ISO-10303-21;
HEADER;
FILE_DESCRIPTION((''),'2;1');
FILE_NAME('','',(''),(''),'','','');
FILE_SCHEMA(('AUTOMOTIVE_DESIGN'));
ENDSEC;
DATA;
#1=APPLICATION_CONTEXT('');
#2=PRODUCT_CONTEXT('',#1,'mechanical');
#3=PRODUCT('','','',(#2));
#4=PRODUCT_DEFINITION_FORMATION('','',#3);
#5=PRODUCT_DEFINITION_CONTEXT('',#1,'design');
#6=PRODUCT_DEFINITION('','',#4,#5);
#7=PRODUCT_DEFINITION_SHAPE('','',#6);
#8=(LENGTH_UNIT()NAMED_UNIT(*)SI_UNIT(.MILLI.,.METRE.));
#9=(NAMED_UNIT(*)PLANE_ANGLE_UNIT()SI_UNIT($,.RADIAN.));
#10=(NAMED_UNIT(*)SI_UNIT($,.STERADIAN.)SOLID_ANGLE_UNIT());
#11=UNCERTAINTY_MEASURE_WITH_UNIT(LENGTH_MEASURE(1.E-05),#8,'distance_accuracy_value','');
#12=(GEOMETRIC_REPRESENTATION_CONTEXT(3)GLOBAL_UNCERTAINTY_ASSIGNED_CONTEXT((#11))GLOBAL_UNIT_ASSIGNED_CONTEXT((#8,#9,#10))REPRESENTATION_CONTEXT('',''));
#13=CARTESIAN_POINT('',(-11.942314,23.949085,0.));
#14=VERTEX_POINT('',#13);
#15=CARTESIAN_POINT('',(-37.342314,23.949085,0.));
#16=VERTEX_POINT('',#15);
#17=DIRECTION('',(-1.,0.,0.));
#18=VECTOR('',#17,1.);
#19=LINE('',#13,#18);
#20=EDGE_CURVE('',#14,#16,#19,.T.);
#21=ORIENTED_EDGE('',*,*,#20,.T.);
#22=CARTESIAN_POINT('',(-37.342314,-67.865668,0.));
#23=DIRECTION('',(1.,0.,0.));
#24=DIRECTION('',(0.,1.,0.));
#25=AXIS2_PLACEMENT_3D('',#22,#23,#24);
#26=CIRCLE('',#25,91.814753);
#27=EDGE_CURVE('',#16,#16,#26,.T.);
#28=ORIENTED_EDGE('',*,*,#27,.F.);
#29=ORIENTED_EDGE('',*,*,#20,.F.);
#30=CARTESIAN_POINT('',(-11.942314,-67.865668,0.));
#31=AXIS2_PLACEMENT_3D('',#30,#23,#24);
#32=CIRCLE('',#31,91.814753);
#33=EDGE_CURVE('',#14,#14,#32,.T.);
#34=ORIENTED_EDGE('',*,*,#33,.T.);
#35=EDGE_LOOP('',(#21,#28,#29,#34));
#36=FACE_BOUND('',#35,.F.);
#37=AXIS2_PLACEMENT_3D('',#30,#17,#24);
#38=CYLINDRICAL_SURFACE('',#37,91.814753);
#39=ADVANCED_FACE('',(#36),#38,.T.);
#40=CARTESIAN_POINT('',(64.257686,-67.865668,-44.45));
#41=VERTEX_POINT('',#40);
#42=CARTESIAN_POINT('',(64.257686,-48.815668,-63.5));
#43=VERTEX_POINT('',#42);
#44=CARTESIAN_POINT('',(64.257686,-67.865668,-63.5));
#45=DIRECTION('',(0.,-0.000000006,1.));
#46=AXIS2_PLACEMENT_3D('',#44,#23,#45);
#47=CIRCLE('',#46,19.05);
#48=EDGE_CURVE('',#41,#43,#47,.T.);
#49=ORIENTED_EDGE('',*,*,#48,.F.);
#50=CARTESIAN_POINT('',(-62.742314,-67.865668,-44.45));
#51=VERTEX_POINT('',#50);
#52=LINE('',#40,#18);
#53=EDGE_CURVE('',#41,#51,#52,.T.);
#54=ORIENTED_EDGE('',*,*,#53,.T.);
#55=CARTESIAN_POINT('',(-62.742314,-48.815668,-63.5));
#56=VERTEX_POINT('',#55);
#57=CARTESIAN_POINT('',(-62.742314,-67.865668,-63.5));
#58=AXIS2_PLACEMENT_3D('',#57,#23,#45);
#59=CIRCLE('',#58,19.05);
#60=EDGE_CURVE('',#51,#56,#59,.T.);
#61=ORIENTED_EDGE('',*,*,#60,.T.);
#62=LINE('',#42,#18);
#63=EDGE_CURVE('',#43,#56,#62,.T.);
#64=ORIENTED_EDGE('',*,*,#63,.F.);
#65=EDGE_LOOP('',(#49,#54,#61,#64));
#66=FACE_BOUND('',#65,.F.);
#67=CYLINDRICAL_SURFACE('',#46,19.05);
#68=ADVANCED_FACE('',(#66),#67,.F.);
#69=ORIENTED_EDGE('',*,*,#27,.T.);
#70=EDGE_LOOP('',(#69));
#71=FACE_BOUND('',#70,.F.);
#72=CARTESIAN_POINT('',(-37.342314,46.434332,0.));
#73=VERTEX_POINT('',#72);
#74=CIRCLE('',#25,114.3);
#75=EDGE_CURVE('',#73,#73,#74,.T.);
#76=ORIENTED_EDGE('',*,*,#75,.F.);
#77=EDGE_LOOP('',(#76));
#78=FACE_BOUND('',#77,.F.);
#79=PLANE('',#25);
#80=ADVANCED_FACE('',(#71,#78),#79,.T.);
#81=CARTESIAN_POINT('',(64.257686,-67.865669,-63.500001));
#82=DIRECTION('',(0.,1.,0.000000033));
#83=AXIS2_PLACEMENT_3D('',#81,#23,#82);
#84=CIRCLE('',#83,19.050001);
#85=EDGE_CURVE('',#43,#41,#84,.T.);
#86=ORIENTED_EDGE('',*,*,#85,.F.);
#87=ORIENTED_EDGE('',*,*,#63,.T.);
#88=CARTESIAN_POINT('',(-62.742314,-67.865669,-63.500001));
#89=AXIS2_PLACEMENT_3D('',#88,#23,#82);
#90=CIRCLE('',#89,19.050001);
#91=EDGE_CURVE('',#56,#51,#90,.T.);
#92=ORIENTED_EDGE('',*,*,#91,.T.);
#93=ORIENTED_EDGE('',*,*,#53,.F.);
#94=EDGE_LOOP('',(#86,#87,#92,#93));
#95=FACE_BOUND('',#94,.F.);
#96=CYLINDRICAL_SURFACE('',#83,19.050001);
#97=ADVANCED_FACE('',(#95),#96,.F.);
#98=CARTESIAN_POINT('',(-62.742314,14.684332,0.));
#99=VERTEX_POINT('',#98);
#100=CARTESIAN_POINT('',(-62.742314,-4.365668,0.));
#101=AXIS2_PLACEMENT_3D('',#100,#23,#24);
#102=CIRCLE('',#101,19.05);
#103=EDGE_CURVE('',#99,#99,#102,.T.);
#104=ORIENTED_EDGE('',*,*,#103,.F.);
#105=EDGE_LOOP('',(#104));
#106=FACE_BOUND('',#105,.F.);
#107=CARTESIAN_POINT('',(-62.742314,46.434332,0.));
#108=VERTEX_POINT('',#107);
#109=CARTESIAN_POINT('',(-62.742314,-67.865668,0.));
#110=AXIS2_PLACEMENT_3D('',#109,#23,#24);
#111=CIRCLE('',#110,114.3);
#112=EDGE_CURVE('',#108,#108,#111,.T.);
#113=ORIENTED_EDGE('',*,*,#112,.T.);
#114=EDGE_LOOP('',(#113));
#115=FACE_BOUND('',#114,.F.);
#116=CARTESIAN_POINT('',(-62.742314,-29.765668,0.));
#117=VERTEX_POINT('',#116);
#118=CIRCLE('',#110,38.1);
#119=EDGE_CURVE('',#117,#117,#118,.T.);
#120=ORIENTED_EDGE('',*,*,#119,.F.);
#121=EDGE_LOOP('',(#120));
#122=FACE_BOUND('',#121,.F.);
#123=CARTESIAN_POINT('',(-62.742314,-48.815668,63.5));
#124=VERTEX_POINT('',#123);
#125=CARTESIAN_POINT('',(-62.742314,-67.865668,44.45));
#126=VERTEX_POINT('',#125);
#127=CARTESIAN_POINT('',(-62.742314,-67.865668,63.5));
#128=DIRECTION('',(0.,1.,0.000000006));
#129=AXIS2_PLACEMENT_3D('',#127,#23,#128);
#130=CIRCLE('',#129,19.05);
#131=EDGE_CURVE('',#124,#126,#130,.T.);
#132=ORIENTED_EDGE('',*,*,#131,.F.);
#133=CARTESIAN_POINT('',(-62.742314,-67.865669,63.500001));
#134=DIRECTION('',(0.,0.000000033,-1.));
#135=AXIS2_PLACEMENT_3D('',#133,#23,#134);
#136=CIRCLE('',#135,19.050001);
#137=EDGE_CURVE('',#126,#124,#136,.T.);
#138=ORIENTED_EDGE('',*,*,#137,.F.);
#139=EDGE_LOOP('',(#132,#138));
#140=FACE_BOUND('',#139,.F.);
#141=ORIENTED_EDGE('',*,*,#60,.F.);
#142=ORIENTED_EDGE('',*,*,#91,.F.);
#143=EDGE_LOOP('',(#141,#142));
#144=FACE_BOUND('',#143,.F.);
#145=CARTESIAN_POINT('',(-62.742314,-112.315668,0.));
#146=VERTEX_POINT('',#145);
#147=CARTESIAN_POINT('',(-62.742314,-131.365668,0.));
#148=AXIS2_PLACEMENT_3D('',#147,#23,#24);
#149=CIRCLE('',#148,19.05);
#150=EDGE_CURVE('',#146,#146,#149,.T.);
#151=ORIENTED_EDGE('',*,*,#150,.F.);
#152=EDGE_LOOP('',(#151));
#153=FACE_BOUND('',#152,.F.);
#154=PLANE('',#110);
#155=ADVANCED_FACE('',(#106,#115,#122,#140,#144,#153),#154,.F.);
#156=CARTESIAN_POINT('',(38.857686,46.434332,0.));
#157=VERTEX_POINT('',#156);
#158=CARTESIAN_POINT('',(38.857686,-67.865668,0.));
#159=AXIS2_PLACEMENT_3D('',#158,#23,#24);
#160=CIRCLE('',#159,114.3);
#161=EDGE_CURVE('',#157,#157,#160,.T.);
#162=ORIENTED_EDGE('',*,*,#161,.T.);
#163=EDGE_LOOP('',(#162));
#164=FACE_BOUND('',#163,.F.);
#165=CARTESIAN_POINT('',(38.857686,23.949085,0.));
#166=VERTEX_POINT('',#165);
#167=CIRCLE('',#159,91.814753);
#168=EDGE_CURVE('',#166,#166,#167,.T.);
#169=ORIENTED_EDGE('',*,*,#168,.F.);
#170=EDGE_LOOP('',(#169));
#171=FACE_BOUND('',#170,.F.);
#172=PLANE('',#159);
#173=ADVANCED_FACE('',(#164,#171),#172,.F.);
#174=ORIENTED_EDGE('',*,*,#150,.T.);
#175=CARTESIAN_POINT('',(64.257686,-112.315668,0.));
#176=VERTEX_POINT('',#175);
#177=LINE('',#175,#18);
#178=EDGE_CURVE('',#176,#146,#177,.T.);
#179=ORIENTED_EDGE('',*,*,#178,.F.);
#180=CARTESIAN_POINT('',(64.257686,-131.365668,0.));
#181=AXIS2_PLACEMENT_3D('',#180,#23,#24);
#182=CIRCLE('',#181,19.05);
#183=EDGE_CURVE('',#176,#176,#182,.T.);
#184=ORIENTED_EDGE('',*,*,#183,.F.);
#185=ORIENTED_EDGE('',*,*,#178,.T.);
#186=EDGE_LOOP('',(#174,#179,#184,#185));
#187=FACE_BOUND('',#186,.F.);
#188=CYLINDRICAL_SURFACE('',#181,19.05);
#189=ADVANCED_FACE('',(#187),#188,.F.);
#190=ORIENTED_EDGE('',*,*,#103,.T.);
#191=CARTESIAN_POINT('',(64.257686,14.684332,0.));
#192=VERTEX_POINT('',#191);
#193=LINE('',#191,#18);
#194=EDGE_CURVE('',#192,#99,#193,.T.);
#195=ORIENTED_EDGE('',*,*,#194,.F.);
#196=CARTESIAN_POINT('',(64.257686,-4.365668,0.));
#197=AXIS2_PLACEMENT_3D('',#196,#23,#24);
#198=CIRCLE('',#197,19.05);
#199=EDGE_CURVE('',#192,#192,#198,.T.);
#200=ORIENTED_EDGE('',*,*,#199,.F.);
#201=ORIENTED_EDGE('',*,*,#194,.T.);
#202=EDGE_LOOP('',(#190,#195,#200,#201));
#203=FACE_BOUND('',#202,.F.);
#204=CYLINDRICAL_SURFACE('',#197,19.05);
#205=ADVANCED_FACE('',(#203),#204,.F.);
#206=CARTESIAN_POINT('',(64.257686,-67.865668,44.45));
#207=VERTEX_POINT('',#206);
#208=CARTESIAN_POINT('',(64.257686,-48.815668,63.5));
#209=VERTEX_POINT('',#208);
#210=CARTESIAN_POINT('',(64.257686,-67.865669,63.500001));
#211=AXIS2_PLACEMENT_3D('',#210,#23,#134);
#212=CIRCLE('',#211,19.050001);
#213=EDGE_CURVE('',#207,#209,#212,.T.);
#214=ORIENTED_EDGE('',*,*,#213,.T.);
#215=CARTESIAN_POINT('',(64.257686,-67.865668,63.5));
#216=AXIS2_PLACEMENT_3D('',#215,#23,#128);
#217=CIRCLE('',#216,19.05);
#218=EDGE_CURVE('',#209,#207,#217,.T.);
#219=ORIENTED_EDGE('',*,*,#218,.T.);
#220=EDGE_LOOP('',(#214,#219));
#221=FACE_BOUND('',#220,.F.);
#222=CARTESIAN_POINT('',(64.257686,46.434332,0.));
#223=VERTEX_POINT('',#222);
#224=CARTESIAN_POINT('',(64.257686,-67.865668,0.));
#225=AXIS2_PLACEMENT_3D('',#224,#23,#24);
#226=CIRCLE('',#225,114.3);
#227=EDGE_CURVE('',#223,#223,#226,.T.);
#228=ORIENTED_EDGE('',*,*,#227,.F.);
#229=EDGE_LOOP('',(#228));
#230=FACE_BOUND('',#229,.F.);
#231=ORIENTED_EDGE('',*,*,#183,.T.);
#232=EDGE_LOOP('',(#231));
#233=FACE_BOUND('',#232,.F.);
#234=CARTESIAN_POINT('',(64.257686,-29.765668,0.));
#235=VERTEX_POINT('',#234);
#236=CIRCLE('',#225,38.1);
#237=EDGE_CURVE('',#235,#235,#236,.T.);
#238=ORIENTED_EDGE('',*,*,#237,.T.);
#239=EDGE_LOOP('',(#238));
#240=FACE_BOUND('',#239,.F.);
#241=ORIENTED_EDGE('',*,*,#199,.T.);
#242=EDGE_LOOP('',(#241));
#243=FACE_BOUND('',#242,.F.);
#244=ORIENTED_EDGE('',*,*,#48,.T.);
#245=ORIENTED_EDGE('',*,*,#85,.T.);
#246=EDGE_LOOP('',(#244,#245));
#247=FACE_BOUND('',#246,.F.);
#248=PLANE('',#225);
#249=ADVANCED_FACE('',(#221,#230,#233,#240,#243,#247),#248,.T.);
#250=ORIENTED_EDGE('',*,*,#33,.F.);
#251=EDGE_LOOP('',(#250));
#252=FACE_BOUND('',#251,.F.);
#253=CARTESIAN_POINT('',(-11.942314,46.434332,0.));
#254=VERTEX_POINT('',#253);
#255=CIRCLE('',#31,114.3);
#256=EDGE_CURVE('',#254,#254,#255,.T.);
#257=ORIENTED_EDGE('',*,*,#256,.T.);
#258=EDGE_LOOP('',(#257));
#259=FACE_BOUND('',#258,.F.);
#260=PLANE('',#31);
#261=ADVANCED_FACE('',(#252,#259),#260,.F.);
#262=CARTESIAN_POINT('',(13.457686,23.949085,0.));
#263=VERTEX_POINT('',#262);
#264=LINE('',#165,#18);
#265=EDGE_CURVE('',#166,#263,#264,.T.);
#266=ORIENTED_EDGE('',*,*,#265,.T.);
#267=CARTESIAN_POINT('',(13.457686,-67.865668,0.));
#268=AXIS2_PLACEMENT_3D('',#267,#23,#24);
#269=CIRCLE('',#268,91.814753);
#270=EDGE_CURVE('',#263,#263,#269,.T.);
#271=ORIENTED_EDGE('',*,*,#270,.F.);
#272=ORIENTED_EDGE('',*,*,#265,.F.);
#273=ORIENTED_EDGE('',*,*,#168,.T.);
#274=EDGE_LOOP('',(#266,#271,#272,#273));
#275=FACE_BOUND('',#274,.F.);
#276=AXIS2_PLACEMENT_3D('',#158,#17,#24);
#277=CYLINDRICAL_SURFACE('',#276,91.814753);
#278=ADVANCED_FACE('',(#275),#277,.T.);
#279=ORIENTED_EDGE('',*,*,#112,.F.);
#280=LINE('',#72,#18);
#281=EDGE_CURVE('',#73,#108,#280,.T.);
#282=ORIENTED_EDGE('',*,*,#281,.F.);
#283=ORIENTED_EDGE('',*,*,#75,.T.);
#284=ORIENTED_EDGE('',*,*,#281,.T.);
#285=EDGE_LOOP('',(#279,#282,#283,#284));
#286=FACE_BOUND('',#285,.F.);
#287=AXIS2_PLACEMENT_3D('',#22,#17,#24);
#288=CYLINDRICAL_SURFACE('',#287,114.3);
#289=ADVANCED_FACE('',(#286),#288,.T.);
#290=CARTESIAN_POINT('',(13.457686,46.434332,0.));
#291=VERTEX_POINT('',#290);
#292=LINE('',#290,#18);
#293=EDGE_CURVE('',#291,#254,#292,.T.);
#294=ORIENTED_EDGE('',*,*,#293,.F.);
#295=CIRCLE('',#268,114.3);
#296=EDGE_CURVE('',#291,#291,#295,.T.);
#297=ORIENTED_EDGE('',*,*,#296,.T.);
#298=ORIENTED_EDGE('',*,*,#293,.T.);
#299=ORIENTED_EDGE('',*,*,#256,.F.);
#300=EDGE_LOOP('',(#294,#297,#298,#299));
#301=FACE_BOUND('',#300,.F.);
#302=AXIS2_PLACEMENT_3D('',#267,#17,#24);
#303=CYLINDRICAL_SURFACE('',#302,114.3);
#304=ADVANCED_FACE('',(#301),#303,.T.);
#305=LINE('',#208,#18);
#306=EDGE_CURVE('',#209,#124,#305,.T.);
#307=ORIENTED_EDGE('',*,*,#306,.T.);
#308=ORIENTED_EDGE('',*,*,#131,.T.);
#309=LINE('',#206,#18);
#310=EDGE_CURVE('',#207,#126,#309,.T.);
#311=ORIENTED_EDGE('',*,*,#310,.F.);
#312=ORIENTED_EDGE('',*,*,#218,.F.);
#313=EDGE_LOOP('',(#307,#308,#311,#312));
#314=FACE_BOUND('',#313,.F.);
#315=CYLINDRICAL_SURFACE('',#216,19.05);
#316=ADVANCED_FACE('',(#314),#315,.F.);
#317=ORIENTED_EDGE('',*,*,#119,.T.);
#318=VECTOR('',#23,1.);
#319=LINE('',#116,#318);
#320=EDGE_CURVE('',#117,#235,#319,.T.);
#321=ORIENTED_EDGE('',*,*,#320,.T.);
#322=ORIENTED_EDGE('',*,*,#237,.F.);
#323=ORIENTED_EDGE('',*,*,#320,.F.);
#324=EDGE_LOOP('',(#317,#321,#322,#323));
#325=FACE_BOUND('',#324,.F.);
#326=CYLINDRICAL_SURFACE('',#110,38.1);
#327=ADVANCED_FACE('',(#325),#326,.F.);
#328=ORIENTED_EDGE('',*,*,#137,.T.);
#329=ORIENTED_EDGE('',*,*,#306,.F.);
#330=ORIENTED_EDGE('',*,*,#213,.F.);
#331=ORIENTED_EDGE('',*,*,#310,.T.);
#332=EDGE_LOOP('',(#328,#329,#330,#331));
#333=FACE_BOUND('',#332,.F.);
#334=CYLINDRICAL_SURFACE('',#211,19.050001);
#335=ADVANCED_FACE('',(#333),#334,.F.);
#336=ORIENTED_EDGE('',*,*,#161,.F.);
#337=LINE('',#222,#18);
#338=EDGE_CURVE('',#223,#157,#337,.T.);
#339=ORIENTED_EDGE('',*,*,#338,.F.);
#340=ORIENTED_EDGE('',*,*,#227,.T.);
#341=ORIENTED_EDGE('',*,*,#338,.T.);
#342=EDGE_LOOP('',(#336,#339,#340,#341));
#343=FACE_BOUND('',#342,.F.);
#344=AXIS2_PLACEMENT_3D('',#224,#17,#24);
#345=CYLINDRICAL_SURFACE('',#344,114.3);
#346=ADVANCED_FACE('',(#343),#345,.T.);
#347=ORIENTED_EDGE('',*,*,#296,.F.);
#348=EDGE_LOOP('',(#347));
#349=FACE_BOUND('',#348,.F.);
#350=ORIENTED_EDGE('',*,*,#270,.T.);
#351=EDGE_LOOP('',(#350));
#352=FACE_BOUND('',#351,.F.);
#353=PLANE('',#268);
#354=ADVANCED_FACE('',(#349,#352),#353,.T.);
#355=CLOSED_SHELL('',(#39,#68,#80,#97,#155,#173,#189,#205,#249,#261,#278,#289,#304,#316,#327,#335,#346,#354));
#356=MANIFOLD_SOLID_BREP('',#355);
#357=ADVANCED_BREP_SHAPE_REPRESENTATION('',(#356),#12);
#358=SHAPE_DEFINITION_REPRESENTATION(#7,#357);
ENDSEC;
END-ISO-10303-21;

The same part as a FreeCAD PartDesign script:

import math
import FreeCAD as App
import Part
import Sketcher

V = App.Vector
Q = App.Units.Quantity


def add_polygon(sketch, points):
    """Adds a closed chain of lines whose ends are joined by coincident constraints."""
    first, n = sketch.GeometryCount, len(points)
    for a, b in zip(points, points[1:] + points[:1]):
        sketch.addGeometry(Part.LineSegment(App.Vector(*a, 0), App.Vector(*b, 0)), False)
    for i in range(n):
        sketch.addConstraint(Sketcher.Constraint("Coincident", first + i, 2, first + (i + 1) % n, 1))

doc = App.newDocument("Part")
body = doc.addObject("PartDesign::Body", "Body")

# Sketch on XY plane
sketch1 = body.newObject("Sketcher::SketchObject", "Sketch")
sketch1.AttachmentSupport = (doc.getObject("XY_Plane"), [""])
sketch1.MapMode = "FlatFace"
add_polygon(sketch1, [(-37, 46), (-63, 46), (-63, -30), (64, -30), (64, 46), (39, 46), (39, 24), (13, 24), (13, 46), (-12, 46), (-12, 24), (-37, 24)])  # lines 0-11
sketch1.addGeometry(Part.LineSegment(V(-63, -68, 0), V(64, -68, 0)), True)  # axis
sketch1.addConstraint(Sketcher.Constraint("Horizontal", 0))
sketch1.addConstraint(Sketcher.Constraint("Vertical", 1))
sketch1.addConstraint(Sketcher.Constraint("Horizontal", 2))
sketch1.addConstraint(Sketcher.Constraint("Vertical", 3))
sketch1.addConstraint(Sketcher.Constraint("Horizontal", 4))
sketch1.addConstraint(Sketcher.Constraint("Vertical", 5))
sketch1.addConstraint(Sketcher.Constraint("Horizontal", 6))
sketch1.addConstraint(Sketcher.Constraint("Vertical", 7))
sketch1.addConstraint(Sketcher.Constraint("Horizontal", 8))
sketch1.addConstraint(Sketcher.Constraint("Vertical", 9))
sketch1.addConstraint(Sketcher.Constraint("Horizontal", 10))
sketch1.addConstraint(Sketcher.Constraint("Vertical", 11))
sketch1.addConstraint(Sketcher.Constraint("Horizontal", 12))
sketch1.addConstraint(Sketcher.Constraint("Horizontal", 0, 2, 3, 2))
sketch1.addConstraint(Sketcher.Constraint("Horizontal", 4, 2, 7, 2))
sketch1.addConstraint(Sketcher.Constraint("Horizontal", 6, 2, 9, 2))
sketch1.addConstraint(Sketcher.Constraint("Vertical", 1, 2, 12, 1))
sketch1.addConstraint(Sketcher.Constraint("Vertical", 3, 2, 12, 2))
sketch1.addConstraint(Sketcher.Constraint("Equal", 0, 4))
sketch1.addConstraint(Sketcher.Constraint("Equal", 4, 6))
sketch1.addConstraint(Sketcher.Constraint("Equal", 6, 8))
sketch1.addConstraint(Sketcher.Constraint("Equal", 8, 10))
sketch1.addConstraint(Sketcher.Constraint("DistanceX", 0, 2, 0, 1, Q("1 in")))
sketch1.addConstraint(Sketcher.Constraint("DistanceY", 1, 2, 1, 1, Q("3 in")))
sketch1.addConstraint(Sketcher.Constraint("DistanceY", 12, 1, 1, 2, Q("1.5 in")))
sketch1.addConstraint(Sketcher.Constraint("DistanceY", 5, 2, 5, 1, Q("22.485247 mm")))
sketch1.addConstraint(Sketcher.Constraint("DistanceY", -1, 1, 0, 2, Q("46.434332 mm")))
sketch1.addConstraint(Sketcher.Constraint("DistanceX", 0, 2, -1, 1, Q("62.742314 mm")))
revolution = body.newObject("PartDesign::Revolution", "Revolution")
revolution.Profile = sketch1
revolution.ReferenceAxis = (sketch1, ["Axis0"])
revolution.Angle = 360

# Sketch on YZ plane
sketch2 = body.newObject("Sketcher::SketchObject", "Sketch001")
sketch2.AttachmentSupport = (doc.getObject("YZ_Plane"), [""])
sketch2.MapMode = "FlatFace"
sketch2.AttachmentOffset = App.Placement(V(0, 0, 64.257686), App.Rotation())
sketch2.addGeometry(Part.ArcOfCircle(Part.Circle(V(-68, 64, 0), V(0, 0, 1), 19), math.radians(-90), math.radians(0)), False)
sketch2.addGeometry(Part.ArcOfCircle(Part.Circle(V(-68, 63, 0), V(0, 0, 1), 19), math.radians(0), math.radians(270)), False)
sketch2.addGeometry(Part.Circle(V(-131, 0, 0), V(0, 0, 1), 19), False)
sketch2.addGeometry(Part.ArcOfCircle(Part.Circle(V(-68, -63, 0), V(0, 0, 1), 19), math.radians(90), math.radians(360)), False)
sketch2.addGeometry(Part.ArcOfCircle(Part.Circle(V(-68, -64, 0), V(0, 0, 1), 19), math.radians(0), math.radians(90)), False)
sketch2.addGeometry(Part.Circle(V(-4, 0, 0), V(0, 0, 1), 19), False)
sketch2.addConstraint(Sketcher.Constraint("Tangent", 0, 1, 1, 2))
sketch2.addConstraint(Sketcher.Constraint("Coincident", 1, 1, 0, 2))
sketch2.addConstraint(Sketcher.Constraint("Tangent", 3, 1, 4, 2))
sketch2.addConstraint(Sketcher.Constraint("Coincident", 4, 1, 3, 2))
sketch2.addConstraint(Sketcher.Constraint("Equal", 1, 2))
sketch2.addConstraint(Sketcher.Constraint("Equal", 2, 3))
sketch2.addConstraint(Sketcher.Constraint("Equal", 4, 5))
sketch2.addConstraint(Sketcher.Constraint("Symmetric", 0, 3, 3, 3, -1))
sketch2.addConstraint(Sketcher.Constraint("PointOnObject", 2, 3, -1))
sketch2.addConstraint(Sketcher.Constraint("PointOnObject", 5, 3, -1))
sketch2.addConstraint(Sketcher.Constraint("Horizontal", 0, 3, 1, 1))
sketch2.addConstraint(Sketcher.Constraint("Horizontal", 3, 3, 4, 1))
sketch2.addConstraint(Sketcher.Constraint("Vertical", 4, 3, 0, 1))
sketch2.addConstraint(Sketcher.Constraint("Vertical", 0, 1, 3, 1))
sketch2.addConstraint(Sketcher.Constraint("Diameter", 2, Q("1.5 in")))
sketch2.addConstraint(Sketcher.Constraint("DistanceY", 3, 3, 1, 3, Q("5 in")))
sketch2.addConstraint(Sketcher.Constraint("DistanceX", 2, 3, 5, 3, Q("5 in")))
sketch2.addConstraint(Sketcher.Constraint("DistanceX", 2, 3, 1, 3, Q("2.5 in")))
sketch2.addConstraint(Sketcher.Constraint("DistanceX", 0, 3, -1, 1, Q("67.865669 mm")))
pocket1 = body.newObject("PartDesign::Pocket", "Pocket")
pocket1.Profile = sketch2
pocket1.Type = "ThroughAll"

doc.recompute()
